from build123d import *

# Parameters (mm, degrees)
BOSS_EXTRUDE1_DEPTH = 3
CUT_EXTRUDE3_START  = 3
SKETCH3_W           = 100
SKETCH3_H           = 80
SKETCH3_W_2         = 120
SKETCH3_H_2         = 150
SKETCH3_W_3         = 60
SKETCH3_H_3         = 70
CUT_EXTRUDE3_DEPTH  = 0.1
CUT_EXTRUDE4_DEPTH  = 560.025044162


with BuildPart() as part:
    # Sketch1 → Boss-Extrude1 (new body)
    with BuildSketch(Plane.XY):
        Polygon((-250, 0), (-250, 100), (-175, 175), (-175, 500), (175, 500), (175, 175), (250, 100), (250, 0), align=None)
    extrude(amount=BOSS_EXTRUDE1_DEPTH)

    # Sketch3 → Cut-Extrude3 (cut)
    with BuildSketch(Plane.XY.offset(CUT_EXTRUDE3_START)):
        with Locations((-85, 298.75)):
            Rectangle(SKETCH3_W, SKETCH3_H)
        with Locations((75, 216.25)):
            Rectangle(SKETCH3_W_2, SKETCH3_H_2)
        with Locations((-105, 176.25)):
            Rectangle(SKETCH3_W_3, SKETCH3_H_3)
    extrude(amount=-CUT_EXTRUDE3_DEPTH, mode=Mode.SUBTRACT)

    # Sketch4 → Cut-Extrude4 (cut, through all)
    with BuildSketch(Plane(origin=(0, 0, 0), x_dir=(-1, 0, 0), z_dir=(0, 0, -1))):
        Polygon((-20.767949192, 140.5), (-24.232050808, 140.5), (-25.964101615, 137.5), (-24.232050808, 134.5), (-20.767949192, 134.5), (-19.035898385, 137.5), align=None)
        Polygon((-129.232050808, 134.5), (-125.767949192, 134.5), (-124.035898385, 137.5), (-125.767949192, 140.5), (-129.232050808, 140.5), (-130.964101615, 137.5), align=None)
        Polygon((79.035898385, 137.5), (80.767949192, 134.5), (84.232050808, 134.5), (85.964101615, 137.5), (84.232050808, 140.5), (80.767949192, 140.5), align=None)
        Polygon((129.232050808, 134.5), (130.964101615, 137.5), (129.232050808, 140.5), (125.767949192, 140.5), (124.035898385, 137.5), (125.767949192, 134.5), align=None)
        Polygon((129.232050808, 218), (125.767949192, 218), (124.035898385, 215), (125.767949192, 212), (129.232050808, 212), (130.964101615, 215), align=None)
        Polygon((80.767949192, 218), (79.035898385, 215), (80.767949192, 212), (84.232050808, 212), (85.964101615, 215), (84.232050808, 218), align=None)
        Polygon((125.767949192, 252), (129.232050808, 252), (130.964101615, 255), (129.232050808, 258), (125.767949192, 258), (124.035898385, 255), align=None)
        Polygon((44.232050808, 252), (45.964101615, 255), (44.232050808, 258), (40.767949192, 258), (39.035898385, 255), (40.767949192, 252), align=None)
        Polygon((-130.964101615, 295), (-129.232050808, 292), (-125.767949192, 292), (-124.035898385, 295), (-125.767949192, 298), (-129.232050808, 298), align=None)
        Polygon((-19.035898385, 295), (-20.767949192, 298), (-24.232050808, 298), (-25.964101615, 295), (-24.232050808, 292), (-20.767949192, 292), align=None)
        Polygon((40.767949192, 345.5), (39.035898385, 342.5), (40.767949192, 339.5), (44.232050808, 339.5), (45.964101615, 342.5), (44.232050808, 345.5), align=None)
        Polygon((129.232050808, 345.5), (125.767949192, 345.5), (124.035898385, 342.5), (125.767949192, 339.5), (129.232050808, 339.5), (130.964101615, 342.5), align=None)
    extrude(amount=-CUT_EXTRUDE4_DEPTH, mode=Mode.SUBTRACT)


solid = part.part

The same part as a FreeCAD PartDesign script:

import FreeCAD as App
import Part
import Sketcher
from FreeCAD import Vector
Q = App.Units.Quantity

doc = App.newDocument("Part")
body = doc.addObject("PartDesign::Body", "Body")

sketch1 = body.newObject("Sketcher::SketchObject", "Sketch")
sketch1.AttachmentSupport = (doc.getObject("XY_Plane"), [""])
sketch1.MapMode = "FlatFace"
sketch1.addGeometry([
    Part.LineSegment(Vector(-250, 100, 0), Vector(-250, 0, 0)),
    Part.LineSegment(Vector(-250, 0, 0), Vector(250, 0, 0)),
    Part.LineSegment(Vector(250, 0, 0), Vector(250, 100, 0)),
    Part.LineSegment(Vector(250, 100, 0), Vector(175, 175, 0)),
    Part.LineSegment(Vector(175, 175, 0), Vector(175, 500, 0)),
    Part.LineSegment(Vector(175, 500, 0), Vector(-175, 500, 0)),
    Part.LineSegment(Vector(-175, 500, 0), Vector(-175, 175, 0)),
    Part.LineSegment(Vector(-175, 175, 0), Vector(-250, 100, 0)),
], False)
sketch1.addConstraint([
    Sketcher.Constraint("Coincident", 0, 2, 1, 1),
    Sketcher.Constraint("Coincident", 1, 2, 2, 1),
    Sketcher.Constraint("Coincident", 2, 2, 3, 1),
    Sketcher.Constraint("Coincident", 3, 2, 4, 1),
    Sketcher.Constraint("Coincident", 4, 2, 5, 1),
    Sketcher.Constraint("Coincident", 5, 2, 6, 1),
    Sketcher.Constraint("Coincident", 6, 2, 7, 1),
    Sketcher.Constraint("Coincident", 7, 2, 0, 1),
    Sketcher.Constraint("Vertical", 0),
    Sketcher.Constraint("Horizontal", 1),
    Sketcher.Constraint("Vertical", 2),
    Sketcher.Constraint("Vertical", 4),
    Sketcher.Constraint("Horizontal", 5),
    Sketcher.Constraint("Vertical", 6),
    Sketcher.Constraint("Symmetric", 0, 2, 1, 2, -1, 1),
    Sketcher.Constraint("Symmetric", 3, 2, 6, 2, -2),
    Sketcher.Constraint("Perpendicular", 3, 7),
    Sketcher.Constraint("Horizontal", 2, 2, 7, 2),
    Sketcher.Constraint("DistanceX", 1, 1, 1, 2, 500.0),
    Sketcher.Constraint("DistanceX", 5, 2, 5, 1, 350.0),
    Sketcher.Constraint("DistanceY", 0, 2, 0, 1, 100.0),
    Sketcher.Constraint("DistanceY", 4, 1, 4, 2, 325.0),
])
pad1 = body.newObject("PartDesign::Pad", "Pad")
pad1.Profile = sketch1
pad1.Length = 3

sketch2 = body.newObject("Sketcher::SketchObject", "Sketch001")
sketch2.AttachmentSupport = (doc.getObject("XY_Plane"), [""])
sketch2.MapMode = "FlatFace"
sketch2.AttachmentOffset = App.Placement(Vector(0, 0, 3), App.Rotation())
sketch2.addGeometry([
    Part.LineSegment(Vector(-135, 339, 0), Vector(-135, 259, 0)),
    Part.LineSegment(Vector(-135, 259, 0), Vector(-35, 259, 0)),
    Part.LineSegment(Vector(-35, 259, 0), Vector(-35, 339, 0)),
    Part.LineSegment(Vector(-35, 339, 0), Vector(-135, 339, 0)),
    Part.LineSegment(Vector(15, 291, 0), Vector(15, 141, 0)),
    Part.LineSegment(Vector(15, 141, 0), Vector(135, 141, 0)),
    Part.LineSegment(Vector(135, 141, 0), Vector(135, 291, 0)),
    Part.LineSegment(Vector(135, 291, 0), Vector(15, 291, 0)),
    Part.LineSegment(Vector(-135, 211, 0), Vector(-135, 141, 0)),
    Part.LineSegment(Vector(-135, 141, 0), Vector(-75, 141, 0)),
    Part.LineSegment(Vector(-75, 141, 0), Vector(-75, 211, 0)),
    Part.LineSegment(Vector(-75, 211, 0), Vector(-135, 211, 0)),
], False)
sketch2.addConstraint([
    Sketcher.Constraint("Coincident", 0, 2, 1, 1),
    Sketcher.Constraint("Coincident", 1, 2, 2, 1),
    Sketcher.Constraint("Coincident", 2, 2, 3, 1),
    Sketcher.Constraint("Coincident", 3, 2, 0, 1),
    Sketcher.Constraint("Coincident", 4, 2, 5, 1),
    Sketcher.Constraint("Coincident", 5, 2, 6, 1),
    Sketcher.Constraint("Coincident", 6, 2, 7, 1),
    Sketcher.Constraint("Coincident", 7, 2, 4, 1),
    Sketcher.Constraint("Coincident", 8, 2, 9, 1),
    Sketcher.Constraint("Coincident", 9, 2, 10, 1),
    Sketcher.Constraint("Coincident", 10, 2, 11, 1),
    Sketcher.Constraint("Coincident", 11, 2, 8, 1),
    Sketcher.Constraint("Vertical", 0),
    Sketcher.Constraint("Horizontal", 1),
    Sketcher.Constraint("Vertical", 2),
    Sketcher.Constraint("Horizontal", 3),
    Sketcher.Constraint("Vertical", 4),
    Sketcher.Constraint("Horizontal", 5),
    Sketcher.Constraint("Vertical", 6),
    Sketcher.Constraint("Horizontal", 7),
    Sketcher.Constraint("Vertical", 8),
    Sketcher.Constraint("Horizontal", 9),
    Sketcher.Constraint("Vertical", 10),
    Sketcher.Constraint("Horizontal", 11),
    Sketcher.Constraint("Symmetric", 5, 2, 8, 2, -2),
    Sketcher.Constraint("Vertical", 3, 2, 8, 2),
    Sketcher.Constraint("DistanceX", 1, 1, 1, 2, 100.0),
    Sketcher.Constraint("DistanceX", 5, 1, 5, 2, 120.0),
    Sketcher.Constraint("DistanceX", 9, 1, 9, 2, 60.0),
    Sketcher.Constraint("DistanceY", 0, 2, 0, 1, 80.0),
    Sketcher.Constraint("DistanceY", 4, 2, 4, 1, 150.0),
    Sketcher.Constraint("DistanceY", 8, 2, 8, 1, 70.0),
    Sketcher.Constraint("DistanceX", 0, 2, -1, 1, 135.0),
    Sketcher.Constraint("DistanceY", 4, 2, 1, 2, 117.5),
    Sketcher.Constraint("DistanceY", -1, 1, 0, 2, 258.75),
])
pocket1 = body.newObject("PartDesign::Pocket", "Pocket")
pocket1.Profile = sketch2
pocket1.Length = 0.1

sketch3 = body.newObject("Sketcher::SketchObject", "Sketch002")
sketch3.AttachmentSupport = (doc.getObject("XY_Plane"), [""])
sketch3.MapMode = "FlatFace"
sketch3.addGeometry([
    Part.LineSegment(Vector(20.8, 140.5, 0), Vector(24.2, 140.5, 0)),
    Part.LineSegment(Vector(24.2, 140.5, 0), Vector(26, 137.5, 0)),
    Part.LineSegment(Vector(26, 137.5, 0), Vector(24.2, 134.5, 0)),
    Part.LineSegment(Vector(24.2, 134.5, 0), Vector(20.8, 134.5, 0)),
    Part.LineSegment(Vector(20.8, 134.5, 0), Vector(19, 137.5, 0)),
    Part.LineSegment(Vector(19, 137.5, 0), Vector(20.8, 140.5, 0)),
    Part.LineSegment(Vector(129.2, 134.5, 0), Vector(125.8, 134.5, 0)),
    Part.LineSegment(Vector(125.8, 134.5, 0), Vector(124, 137.5, 0)),
    Part.LineSegment(Vector(124, 137.5, 0), Vector(125.8, 140.5, 0)),
    Part.LineSegment(Vector(125.8, 140.5, 0), Vector(129.2, 140.5, 0)),
    Part.LineSegment(Vector(129.2, 140.5, 0), Vector(131, 137.5, 0)),
    Part.LineSegment(Vector(131, 137.5, 0), Vector(129.2, 134.5, 0)),
    Part.LineSegment(Vector(-79, 137.5, 0), Vector(-80.8, 134.5, 0)),
    Part.LineSegment(Vector(-80.8, 134.5, 0), Vector(-84.2, 134.5, 0)),
    Part.LineSegment(Vector(-84.2, 134.5, 0), Vector(-86, 137.5, 0)),
    Part.LineSegment(Vector(-86, 137.5, 0), Vector(-84.2, 140.5, 0)),
    Part.LineSegment(Vector(-84.2, 140.5, 0), Vector(-80.8, 140.5, 0)),
    Part.LineSegment(Vector(-80.8, 140.5, 0), Vector(-79, 137.5, 0)),
    Part.LineSegment(Vector(-129.2, 134.5, 0), Vector(-131, 137.5, 0)),
    Part.LineSegment(Vector(-131, 137.5, 0), Vector(-129.2, 140.5, 0)),
    Part.LineSegment(Vector(-129.2, 140.5, 0), Vector(-125.8, 140.5, 0)),
    Part.LineSegment(Vector(-125.8, 140.5, 0), Vector(-124, 137.5, 0)),
    Part.LineSegment(Vector(-124, 137.5, 0), Vector(-125.8, 134.5, 0)),
    Part.LineSegment(Vector(-125.8, 134.5, 0), Vector(-129.2, 134.5, 0)),
    Part.LineSegment(Vector(-129.2, 218, 0), Vector(-125.8, 218, 0)),
    Part.LineSegment(Vector(-125.8, 218, 0), Vector(-124, 215, 0)),
    Part.LineSegment(Vector(-124, 215, 0), Vector(-125.8, 212, 0)),
    Part.LineSegment(Vector(-125.8, 212, 0), Vector(-129.2, 212, 0)),
    Part.LineSegment(Vector(-129.2, 212, 0), Vector(-131, 215, 0)),
    Part.LineSegment(Vector(-131, 215, 0), Vector(-129.2, 218, 0)),
    Part.LineSegment(Vector(-80.8, 218, 0), Vector(-79, 215, 0)),
    Part.LineSegment(Vector(-79, 215, 0), Vector(-80.8, 212, 0)),
    Part.LineSegment(Vector(-80.8, 212, 0), Vector(-84.2, 212, 0)),
    Part.LineSegment(Vector(-84.2, 212, 0), Vector(-86, 215, 0)),
    Part.LineSegment(Vector(-86, 215, 0), Vector(-84.2, 218, 0)),
    Part.LineSegment(Vector(-84.2, 218, 0), Vector(-80.8, 218, 0)),
    Part.LineSegment(Vector(-125.8, 252, 0), Vector(-129.2, 252, 0)),
    Part.LineSegment(Vector(-129.2, 252, 0), Vector(-131, 255, 0)),
    Part.LineSegment(Vector(-131, 255, 0), Vector(-129.2, 258, 0)),
    Part.LineSegment(Vector(-129.2, 258, 0), Vector(-125.8, 258, 0)),
    Part.LineSegment(Vector(-125.8, 258, 0), Vector(-124, 255, 0)),
    Part.LineSegment(Vector(-124, 255, 0), Vector(-125.8, 252, 0)),
    Part.LineSegment(Vector(-44.2, 252, 0), Vector(-46, 255, 0)),
    Part.LineSegment(Vector(-46, 255, 0), Vector(-44.2, 258, 0)),
    Part.LineSegment(Vector(-44.2, 258, 0), Vector(-40.8, 258, 0)),
    Part.LineSegment(Vector(-40.8, 258, 0), Vector(-39, 255, 0)),
    Part.LineSegment(Vector(-39, 255, 0), Vector(-40.8, 252, 0)),
    Part.LineSegment(Vector(-40.8, 252, 0), Vector(-44.2, 252, 0)),
    Part.LineSegment(Vector(131, 295, 0), Vector(129.2, 292, 0)),
    Part.LineSegment(Vector(129.2, 292, 0), Vector(125.8, 292, 0)),
    Part.LineSegment(Vector(125.8, 292, 0), Vector(124, 295, 0)),
    Part.LineSegment(Vector(124, 295, 0), Vector(125.8, 298, 0)),
    Part.LineSegment(Vector(125.8, 298, 0), Vector(129.2, 298, 0)),
    Part.LineSegment(Vector(129.2, 298, 0), Vector(131, 295, 0)),
    Part.LineSegment(Vector(19, 295, 0), Vector(20.8, 298, 0)),
    Part.LineSegment(Vector(20.8, 298, 0), Vector(24.2, 298, 0)),
    Part.LineSegment(Vector(24.2, 298, 0), Vector(26, 295, 0)),
    Part.LineSegment(Vector(26, 295, 0), Vector(24.2, 292, 0)),
    Part.LineSegment(Vector(24.2, 292, 0), Vector(20.8, 292, 0)),
    Part.LineSegment(Vector(20.8, 292, 0), Vector(19, 295, 0)),
    Part.LineSegment(Vector(-40.8, 345.5, 0), Vector(-39, 342.5, 0)),
    Part.LineSegment(Vector(-39, 342.5, 0), Vector(-40.8, 339.5, 0)),
    Part.LineSegment(Vector(-40.8, 339.5, 0), Vector(-44.2, 339.5, 0)),
    Part.LineSegment(Vector(-44.2, 339.5, 0), Vector(-46, 342.5, 0)),
    Part.LineSegment(Vector(-46, 342.5, 0), Vector(-44.2, 345.5, 0)),
    Part.LineSegment(Vector(-44.2, 345.5, 0), Vector(-40.8, 345.5, 0)),
    Part.LineSegment(Vector(-129.2, 345.5, 0), Vector(-125.8, 345.5, 0)),
    Part.LineSegment(Vector(-125.8, 345.5, 0), Vector(-124, 342.5, 0)),
    Part.LineSegment(Vector(-124, 342.5, 0), Vector(-125.8, 339.5, 0)),
    Part.LineSegment(Vector(-125.8, 339.5, 0), Vector(-129.2, 339.5, 0)),
    Part.LineSegment(Vector(-129.2, 339.5, 0), Vector(-131, 342.5, 0)),
    Part.LineSegment(Vector(-131, 342.5, 0), Vector(-129.2, 345.5, 0)),
], False)
sketch3.addConstraint([
    Sketcher.Constraint("Coincident", 0, 2, 1, 1),
    Sketcher.Constraint("Coincident", 1, 2, 2, 1),
    Sketcher.Constraint("Coincident", 2, 2, 3, 1),
    Sketcher.Constraint("Coincident", 3, 2, 4, 1),
    Sketcher.Constraint("Coincident", 4, 2, 5, 1),
    Sketcher.Constraint("Coincident", 5, 2, 0, 1),
    Sketcher.Constraint("Coincident", 6, 2, 7, 1),
    Sketcher.Constraint("Coincident", 7, 2, 8, 1),
    Sketcher.Constraint("Coincident", 8, 2, 9, 1),
    Sketcher.Constraint("Coincident", 9, 2, 10, 1),
    Sketcher.Constraint("Coincident", 10, 2, 11, 1),
    Sketcher.Constraint("Coincident", 11, 2, 6, 1),
    Sketcher.Constraint("Coincident", 12, 2, 13, 1),
    Sketcher.Constraint("Coincident", 13, 2, 14, 1),
    Sketcher.Constraint("Coincident", 14, 2, 15, 1),
    Sketcher.Constraint("Coincident", 15, 2, 16, 1),
    Sketcher.Constraint("Coincident", 16, 2, 17, 1),
    Sketcher.Constraint("Coincident", 17, 2, 12, 1),
    Sketcher.Constraint("Coincident", 18, 2, 19, 1),
    Sketcher.Constraint("Coincident", 19, 2, 20, 1),
    Sketcher.Constraint("Coincident", 20, 2, 21, 1),
    Sketcher.Constraint("Coincident", 21, 2, 22, 1),
    Sketcher.Constraint("Coincident", 22, 2, 23, 1),
    Sketcher.Constraint("Coincident", 23, 2, 18, 1),
    Sketcher.Constraint("Coincident", 24, 2, 25, 1),
    Sketcher.Constraint("Coincident", 25, 2, 26, 1),
    Sketcher.Constraint("Coincident", 26, 2, 27, 1),
    Sketcher.Constraint("Coincident", 27, 2, 28, 1),
    Sketcher.Constraint("Coincident", 28, 2, 29, 1),
    Sketcher.Constraint("Coincident", 29, 2, 24, 1),
    Sketcher.Constraint("Coincident", 30, 2, 31, 1),
    Sketcher.Constraint("Coincident", 31, 2, 32, 1),
    Sketcher.Constraint("Coincident", 32, 2, 33, 1),
    Sketcher.Constraint("Coincident", 33, 2, 34, 1),
    Sketcher.Constraint("Coincident", 34, 2, 35, 1),
    Sketcher.Constraint("Coincident", 35, 2, 30, 1),
    Sketcher.Constraint("Coincident", 36, 2, 37, 1),
    Sketcher.Constraint("Coincident", 37, 2, 38, 1),
    Sketcher.Constraint("Coincident", 38, 2, 39, 1),
    Sketcher.Constraint("Coincident", 39, 2, 40, 1),
    Sketcher.Constraint("Coincident", 40, 2, 41, 1),
    Sketcher.Constraint("Coincident", 41, 2, 36, 1),
    Sketcher.Constraint("Coincident", 42, 2, 43, 1),
    Sketcher.Constraint("Coincident", 43, 2, 44, 1),
    Sketcher.Constraint("Coincident", 44, 2, 45, 1),
    Sketcher.Constraint("Coincident", 45, 2, 46, 1),
    Sketcher.Constraint("Coincident", 46, 2, 47, 1),
    Sketcher.Constraint("Coincident", 47, 2, 42, 1),
    Sketcher.Constraint("Coincident", 48, 2, 49, 1),
    Sketcher.Constraint("Coincident", 49, 2, 50, 1),
    Sketcher.Constraint("Coincident", 50, 2, 51, 1),
    Sketcher.Constraint("Coincident", 51, 2, 52, 1),
    Sketcher.Constraint("Coincident", 52, 2, 53, 1),
    Sketcher.Constraint("Coincident", 53, 2, 48, 1),
    Sketcher.Constraint("Coincident", 54, 2, 55, 1),
    Sketcher.Constraint("Coincident", 55, 2, 56, 1),
    Sketcher.Constraint("Coincident", 56, 2, 57, 1),
    Sketcher.Constraint("Coincident", 57, 2, 58, 1),
    Sketcher.Constraint("Coincident", 58, 2, 59, 1),
    Sketcher.Constraint("Coincident", 59, 2, 54, 1),
    Sketcher.Constraint("Coincident", 60, 2, 61, 1),
    Sketcher.Constraint("Coincident", 61, 2, 62, 1),
    Sketcher.Constraint("Coincident", 62, 2, 63, 1),
    Sketcher.Constraint("Coincident", 63, 2, 64, 1),
    Sketcher.Constraint("Coincident", 64, 2, 65, 1),
    Sketcher.Constraint("Coincident", 65, 2, 60, 1),
    Sketcher.Constraint("Coincident", 66, 2, 67, 1),
    Sketcher.Constraint("Coincident", 67, 2, 68, 1),
    Sketcher.Constraint("Coincident", 68, 2, 69, 1),
    Sketcher.Constraint("Coincident", 69, 2, 70, 1),
    Sketcher.Constraint("Coincident", 70, 2, 71, 1),
    Sketcher.Constraint("Coincident", 71, 2, 66, 1),
    Sketcher.Constraint("Horizontal", 0),
    Sketcher.Constraint("Horizontal", 3),
    Sketcher.Constraint("Horizontal", 6),
    Sketcher.Constraint("Horizontal", 9),
    Sketcher.Constraint("Horizontal", 13),
    Sketcher.Constraint("Horizontal", 16),
    Sketcher.Constraint("Horizontal", 20),
    Sketcher.Constraint("Horizontal", 23),
    Sketcher.Constraint("Horizontal", 24),
    Sketcher.Constraint("Horizontal", 27),
    Sketcher.Constraint("Horizontal", 32),
    Sketcher.Constraint("Horizontal", 35),
    Sketcher.Constraint("Horizontal", 36),
    Sketcher.Constraint("Horizontal", 39),
    Sketcher.Constraint("Horizontal", 44),
    Sketcher.Constraint("Horizontal", 47),
    Sketcher.Constraint("Horizontal", 49),
    Sketcher.Constraint("Horizontal", 52),
    Sketcher.Constraint("Horizontal", 55),
    Sketcher.Constraint("Horizontal", 58),
    Sketcher.Constraint("Horizontal", 62),
    Sketcher.Constraint("Horizontal", 65),
    Sketcher.Constraint("Horizontal", 66),
    Sketcher.Constraint("Horizontal", 69),
    Sketcher.Constraint("Symmetric", 10, 2, 18, 2, -2),
    Sketcher.Constraint("Symmetric", 9, 2, 19, 2, -2),
    Sketcher.Constraint("Symmetric", 7, 2, 21, 2, -2),
    Sketcher.Constraint("Symmetric", 6, 2, 22, 2, -2),
    Sketcher.Constraint("Parallel", 1, 4),
    Sketcher.Constraint("Parallel", 2, 5),
    Sketcher.Constraint("Parallel", 4, 7),
    Sketcher.Constraint("Parallel", 5, 8),
    Sketcher.Constraint("Parallel", 7, 10),
    Sketcher.Constraint("Parallel", 8, 11),
    Sketcher.Constraint("Parallel", 11, 12),
    Sketcher.Constraint("Parallel", 10, 14),
    Sketcher.Constraint("Parallel", 12, 15),
    Sketcher.Constraint("Parallel", 14, 17),
    Sketcher.Constraint("Parallel", 17, 18),
    Sketcher.Constraint("Parallel", 15, 19),
    Sketcher.Constraint("Parallel", 18, 21),
    Sketcher.Constraint("Parallel", 21, 25),
    Sketcher.Constraint("Parallel", 22, 26),
    Sketcher.Constraint("Parallel", 25, 28),
    Sketcher.Constraint("Parallel", 26, 29),
    Sketcher.Constraint("Parallel", 28, 30),
    Sketcher.Constraint("Parallel", 29, 31),
    Sketcher.Constraint("Parallel", 30, 33),
    Sketcher.Constraint("Parallel", 31, 34),
    Sketcher.Constraint("Parallel", 33, 37),
    Sketcher.Constraint("Parallel", 34, 38),
    Sketcher.Constraint("Parallel", 37, 40),
    Sketcher.Constraint("Parallel", 38, 41),
    Sketcher.Constraint("Parallel", 40, 42),
    Sketcher.Constraint("Parallel", 41, 43),
    Sketcher.Constraint("Parallel", 42, 45),
    Sketcher.Constraint("Parallel", 43, 46),
    Sketcher.Constraint("Parallel", 46, 48),
    Sketcher.Constraint("Parallel", 45, 50),
    Sketcher.Constraint("Parallel", 48, 51),
    Sketcher.Constraint("Parallel", 50, 53),
    Sketcher.Constraint("Parallel", 51, 54),
    Sketcher.Constraint("Parallel", 53, 56),
    Sketcher.Constraint("Parallel", 54, 57),
    Sketcher.Constraint("Parallel", 56, 59),
    Sketcher.Constraint("Parallel", 59, 60),
    Sketcher.Constraint("Parallel", 57, 61),
    Sketcher.Constraint("Parallel", 60, 63),
    Sketcher.Constraint("Parallel", 61, 64),
    Sketcher.Constraint("Parallel", 63, 67),
    Sketcher.Constraint("Parallel", 64, 68),
    Sketcher.Constraint("Parallel", 67, 70),
    Sketcher.Constraint("Parallel", 68, 71),
    Sketcher.Constraint("Horizontal", 1, 2, 4, 2),
    Sketcher.Constraint("Horizontal", 3, 2, 6, 2),
    Sketcher.Constraint("Horizontal", 4, 2, 7, 2),
    Sketcher.Constraint("Horizontal", 5, 2, 8, 2),
    Sketcher.Constraint("Horizontal", 7, 2, 10, 2),
    Sketcher.Constraint("Horizontal", 11, 2, 12, 2),
    Sketcher.Constraint("Horizontal", 10, 2, 14, 2),
    Sketcher.Constraint("Horizontal", 9, 2, 15, 2),
    Sketcher.Constraint("Horizontal", 14, 2, 17, 2),
    Sketcher.Constraint("Horizontal", 25, 2, 28, 2),
    Sketcher.Constraint("Horizontal", 28, 2, 30, 2),
    Sketcher.Constraint("Horizontal", 27, 2, 31, 2),
    Sketcher.Constraint("Horizontal", 30, 2, 33, 2),
    Sketcher.Constraint("Horizontal", 29, 2, 34, 2),
    Sketcher.Constraint("Horizontal", 37, 2, 40, 2),
    Sketcher.Constraint("Horizontal", 40, 2, 42, 2),
    Sketcher.Constraint("Horizontal", 39, 2, 43, 2),
    Sketcher.Constraint("Horizontal", 42, 2, 45, 2),
    Sketcher.Constraint("Horizontal", 41, 2, 46, 2),
    Sketcher.Constraint("Horizontal", 50, 2, 53, 2),
    Sketcher.Constraint("Horizontal", 52, 2, 54, 2),
    Sketcher.Constraint("Horizontal", 53, 2, 56, 2),
    Sketcher.Constraint("Horizontal", 49, 2, 57, 2),
    Sketcher.Constraint("Horizontal", 56, 2, 59, 2),
    Sketcher.Constraint("Horizontal", 60, 2, 63, 2),
    Sketcher.Constraint("Horizontal", 65, 2, 66, 2),
    Sketcher.Constraint("Horizontal", 63, 2, 67, 2),
    Sketcher.Constraint("Horizontal", 62, 2, 68, 2),
    Sketcher.Constraint("Horizontal", 67, 2, 70, 2),
    Sketcher.Constraint("Vertical", 0, 2, 2, 2),
    Sketcher.Constraint("Vertical", 22, 2, 24, 2),
    Sketcher.Constraint("Vertical", 21, 2, 25, 2),
    Sketcher.Constraint("Vertical", 24, 2, 26, 2),
    Sketcher.Constraint("Vertical", 23, 2, 27, 2),
    Sketcher.Constraint("Vertical", 17, 2, 30, 2),
    Sketcher.Constraint("Vertical", 15, 2, 32, 2),
    Sketcher.Constraint("Vertical", 29, 2, 36, 2),
    Sketcher.Constraint("Vertical", 28, 2, 37, 2),
    Sketcher.Constraint("Vertical", 36, 2, 38, 2),
    Sketcher.Constraint("Vertical", 26, 2, 39, 2),
    Sketcher.Constraint("Vertical", 11, 2, 48, 2),
    Sketcher.Constraint("Vertical", 8, 2, 49, 2),
    Sketcher.Constraint("Vertical", 7, 2, 50, 2),
    Sketcher.Constraint("Vertical", 49, 2, 51, 2),
    Sketcher.Constraint("Vertical", 5, 2, 54, 2),
    Sketcher.Constraint("Vertical", 2, 2, 55, 2),
    Sketcher.Constraint("Vertical", 45, 2, 60, 2),
    Sketcher.Constraint("Vertical", 46, 2, 61, 2),
    Sketcher.Constraint("Vertical", 47, 2, 62, 2),
    Sketcher.Constraint("Vertical", 62, 2, 64, 2),
    Sketcher.Constraint("Vertical", 41, 2, 66, 2),
    Sketcher.Constraint("Vertical", 38, 2, 69, 2),
    Sketcher.Constraint("Equal", 3, 6),
    Sketcher.Constraint("Equal", 9, 13),
    Sketcher.Constraint("Equal", 39, 44),
    Sketcher.Constraint("Angle", 1, Q("-60 deg")),
    Sketcher.Constraint("DistanceY", -1, 1, 24, 2, 218.0),
    Sketcher.Constraint("DistanceY", -1, 1, 25, 2, 215.0),
    Sketcher.Constraint("DistanceY", -1, 1, 36, 2, 252.0),
    Sketcher.Constraint("DistanceY", -1, 1, 48, 2, 292.0),
    Sketcher.Constraint("DistanceY", -1, 1, 0, 2, 140.5),
    Sketcher.Constraint("DistanceY", -1, 1, 60, 2, 342.5),
    Sketcher.Constraint("DistanceX", 0, 1, 0, 2, 3.464102),
    Sketcher.Constraint("DistanceX", -1, 1, 1, 2, 25.964102),
    Sketcher.Constraint("DistanceX", -1, 1, 7, 2, 124.035898),
    Sketcher.Constraint("DistanceX", 14, 2, -1, 1, 85.964102),
    Sketcher.Constraint("DistanceX", 42, 2, -1, 1, 45.964102),
])
pocket2 = body.newObject("PartDesign::Pocket", "Pocket001")
pocket2.Profile = sketch3
pocket2.Type = "ThroughAll"
pocket2.Reversed = True

doc.recompute()
